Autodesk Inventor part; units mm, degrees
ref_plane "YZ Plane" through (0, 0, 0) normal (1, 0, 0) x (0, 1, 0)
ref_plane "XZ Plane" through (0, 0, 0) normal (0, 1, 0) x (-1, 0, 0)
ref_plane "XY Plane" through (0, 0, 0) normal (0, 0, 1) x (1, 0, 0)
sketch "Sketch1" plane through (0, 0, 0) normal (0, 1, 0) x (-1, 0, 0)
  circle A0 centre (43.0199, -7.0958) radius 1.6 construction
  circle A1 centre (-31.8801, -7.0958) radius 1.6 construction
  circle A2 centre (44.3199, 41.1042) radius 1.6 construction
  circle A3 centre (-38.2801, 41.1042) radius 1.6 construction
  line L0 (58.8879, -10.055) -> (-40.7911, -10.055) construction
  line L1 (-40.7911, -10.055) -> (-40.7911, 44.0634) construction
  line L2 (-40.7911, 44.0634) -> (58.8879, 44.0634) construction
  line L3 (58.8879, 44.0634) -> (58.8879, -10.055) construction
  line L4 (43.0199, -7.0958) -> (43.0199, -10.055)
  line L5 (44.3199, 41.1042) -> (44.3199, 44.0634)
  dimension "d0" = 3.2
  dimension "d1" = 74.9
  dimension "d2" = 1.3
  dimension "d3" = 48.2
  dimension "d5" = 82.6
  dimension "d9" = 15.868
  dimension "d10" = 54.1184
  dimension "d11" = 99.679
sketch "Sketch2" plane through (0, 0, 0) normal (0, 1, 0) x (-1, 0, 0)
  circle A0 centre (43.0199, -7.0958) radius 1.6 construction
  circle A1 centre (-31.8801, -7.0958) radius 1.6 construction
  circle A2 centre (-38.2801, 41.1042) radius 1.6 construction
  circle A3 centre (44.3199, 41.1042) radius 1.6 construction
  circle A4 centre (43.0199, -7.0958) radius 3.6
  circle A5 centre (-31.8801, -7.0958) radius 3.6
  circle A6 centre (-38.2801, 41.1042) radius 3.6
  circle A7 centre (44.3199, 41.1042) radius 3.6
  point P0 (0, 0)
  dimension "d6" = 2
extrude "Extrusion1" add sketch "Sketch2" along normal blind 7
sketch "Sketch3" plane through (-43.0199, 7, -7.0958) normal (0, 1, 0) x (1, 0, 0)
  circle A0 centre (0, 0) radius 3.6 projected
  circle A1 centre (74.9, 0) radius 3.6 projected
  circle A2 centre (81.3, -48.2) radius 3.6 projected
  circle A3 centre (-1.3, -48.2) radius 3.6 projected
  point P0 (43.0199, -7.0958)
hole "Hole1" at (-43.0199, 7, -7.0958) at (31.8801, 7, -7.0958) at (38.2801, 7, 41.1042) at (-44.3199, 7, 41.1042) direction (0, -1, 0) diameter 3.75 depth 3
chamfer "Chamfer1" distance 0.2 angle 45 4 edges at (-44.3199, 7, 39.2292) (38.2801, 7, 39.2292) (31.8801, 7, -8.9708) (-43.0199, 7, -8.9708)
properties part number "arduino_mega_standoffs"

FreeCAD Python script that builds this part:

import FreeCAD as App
import Part
import Sketcher

V = App.Vector
Q = App.Units.Quantity


def edges_at(feature, points):
    """Names of the edges that pass closest to the given points."""
    edges = feature.Shape.Edges
    near = lambda p: min(range(len(edges)), key=lambda i: edges[i].distToShape(Part.Vertex(*p))[0])
    return sorted({f"Edge{near(p) + 1}" for p in points})

doc = App.newDocument("Part")
params = doc.addObject("Spreadsheet::Sheet", "Params")
for row, (alias, value) in enumerate([
    ("sketch1_diameter", "7.2 mm"),
    ("pad1_length", "7 mm"),
    ("sketch2_diameter", "3.75 mm"),
    ("hole_diameter", "3.75 mm"),
    ("hole_depth", "3 mm"),
    ("chamfer_size", "0.2 mm"),
], start=1):
    params.set(f"A{row}", alias)
    params.set(f"B{row}", "=" + value)
    params.setAlias(f"B{row}", alias)

body = doc.addObject("PartDesign::Body", "Body")
body.AllowCompound = True

sketch1 = body.newObject("Sketcher::SketchObject", "Sketch")
sketch1.AttachmentSupport = (doc.getObject("XZ_Plane"), [""])
sketch1.MapMode = "FlatFace"
sketch1.addGeometry([
    Part.Circle(V(-43, -7.1, 0), V(0, 0, 1), 3.6),
    Part.Circle(V(31.9, -7.1, 0), V(0, 0, 1), 3.6),
    Part.Circle(V(38.3, 41.1, 0), V(0, 0, 1), 3.6),
    Part.Circle(V(-44.3, 41.1, 0), V(0, 0, 1), 3.6),
], False)
sketch1.addConstraint([
    Sketcher.Constraint("Equal", 0, 1),
    Sketcher.Constraint("Equal", 1, 2),
    Sketcher.Constraint("Equal", 2, 3),
    Sketcher.Constraint("Horizontal", 0, 3, 1, 3),
    Sketcher.Constraint("Horizontal", 2, 3, 3, 3),
    Sketcher.Constraint("Diameter", 0, Q("7.2 mm")),
    Sketcher.Constraint("DistanceX", 0, 3, 1, 3, Q("74.9 mm")),
    Sketcher.Constraint("DistanceX", 1, 3, 2, 3, Q("6.4 mm")),
    Sketcher.Constraint("DistanceY", 1, 3, 2, 3, Q("48.2 mm")),
    Sketcher.Constraint("DistanceX", 3, 3, 0, 3, Q("1.3 mm")),
    Sketcher.Constraint("DistanceX", 0, 3, -1, 1, Q("43.02 mm")),
    Sketcher.Constraint("DistanceY", 0, 3, -1, 1, Q("7.0958 mm")),
])
sketch1.setExpression("Constraints[5]", "Params.sketch1_diameter")
pad1 = body.newObject("PartDesign::Pad", "Pad")
pad1.Profile = sketch1
pad1.setExpression("Length", "Params.pad1_length")
pad1.Reversed = True

sketch2 = body.newObject("Sketcher::SketchObject", "Sketch001")
sketch2.AttachmentSupport = (doc.getObject("XZ_Plane"), [""])
sketch2.MapMode = "FlatFace"
sketch2.AttachmentOffset = App.Placement(V(0, 0, -7), App.Rotation())
sketch2.addGeometry([
    Part.Circle(V(-43, -7.1, 0), V(0, 0, 1), 1.9),
    Part.Circle(V(31.9, -7.1, 0), V(0, 0, 1), 1.9),
    Part.Circle(V(38.3, 41.1, 0), V(0, 0, 1), 1.9),
    Part.Circle(V(-44.3, 41.1, 0), V(0, 0, 1), 1.9),
], False)
sketch2.addConstraint([
    Sketcher.Constraint("Equal", 0, 1),
    Sketcher.Constraint("Equal", 1, 2),
    Sketcher.Constraint("Equal", 2, 3),
    Sketcher.Constraint("Horizontal", 0, 3, 1, 3),
    Sketcher.Constraint("Horizontal", 2, 3, 3, 3),
    Sketcher.Constraint("Diameter", 0, Q("3.75 mm")),
    Sketcher.Constraint("DistanceX", 0, 3, 1, 3, Q("74.9 mm")),
    Sketcher.Constraint("DistanceX", 1, 3, 2, 3, Q("6.4 mm")),
    Sketcher.Constraint("DistanceY", 1, 3, 2, 3, Q("48.2 mm")),
    Sketcher.Constraint("DistanceX", 3, 3, 0, 3, Q("1.3 mm")),
    Sketcher.Constraint("DistanceX", 0, 3, -1, 1, Q("43.02 mm")),
    Sketcher.Constraint("DistanceY", 0, 3, -1, 1, Q("7.0958 mm")),
])
sketch2.setExpression("Constraints[5]", "Params.sketch2_diameter")
doc.recompute()
hole = body.newObject("PartDesign::Hole", "Hole")
hole.Profile = sketch2
hole.ThreadType = "None"
hole.setExpression("Diameter", "Params.hole_diameter")
hole.DepthType = "Dimension"
hole.setExpression("Depth", "Params.hole_depth")
hole.DrillPoint = "Flat"
hole.Reversed = True
doc.recompute()

chamfer = body.newObject("PartDesign::Chamfer", "Chamfer")
chamfer.Base = (hole, edges_at(hole, [
    (-44.32, 7, 39.229),
    (38.28, 7, 39.229),
    (31.88, 7, -8.971),
    (-43.02, 7, -8.971),
]))
chamfer.setExpression("Size", "Params.chamfer_size")

doc.recompute()
